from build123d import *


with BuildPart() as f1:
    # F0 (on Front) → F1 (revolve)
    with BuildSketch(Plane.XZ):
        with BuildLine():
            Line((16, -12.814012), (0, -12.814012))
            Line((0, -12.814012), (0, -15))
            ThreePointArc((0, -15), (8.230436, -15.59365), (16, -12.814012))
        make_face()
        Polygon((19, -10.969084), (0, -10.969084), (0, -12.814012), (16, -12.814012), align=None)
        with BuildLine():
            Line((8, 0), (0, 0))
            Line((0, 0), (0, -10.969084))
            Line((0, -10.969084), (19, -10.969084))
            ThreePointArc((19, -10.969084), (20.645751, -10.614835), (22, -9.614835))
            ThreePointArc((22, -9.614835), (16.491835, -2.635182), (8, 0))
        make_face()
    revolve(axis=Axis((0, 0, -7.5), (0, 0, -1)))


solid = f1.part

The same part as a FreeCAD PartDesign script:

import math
import FreeCAD as App
import Part
import Sketcher
from FreeCAD import Vector
Q = App.Units.Quantity

doc = App.newDocument("Part")
body = doc.addObject("PartDesign::Body", "Body")

# Sketch on XZ plane
sketch1 = body.newObject("Sketcher::SketchObject", "Sketch")
sketch1.AttachmentSupport = (doc.getObject("XZ_Plane"), [""])
sketch1.MapMode = "FlatFace"
sketch1.addGeometry(Part.ArcOfCircle(Part.Circle(Vector(5.5, 4.2, 0), Vector(0, 0, 1), 20), math.radians(-106), math.radians(-58)), False)
sketch1.addGeometry(Part.LineSegment(Vector(16, -12.8, 0), Vector(19, -11, 0)), False)
sketch1.addGeometry(Part.ArcOfCircle(Part.Circle(Vector(19, -7, 0), Vector(0, 0, 1), 4), math.radians(-90), math.radians(-41)), False)
sketch1.addGeometry(Part.ArcOfCircle(Part.Circle(Vector(8, -15, 0), Vector(0, 0, 1), 15), math.radians(21), math.radians(90)), False)
sketch1.addGeometry(Part.LineSegment(Vector(8, 0, 0), Vector(0, 0, 0)), False)
sketch1.addGeometry(Part.LineSegment(Vector(0, 0, 0), Vector(0, -15, 0)), False)
sketch1.addConstraint(Sketcher.Constraint("Tangent", 0, 2, 1, 1))
sketch1.addConstraint(Sketcher.Constraint("Coincident", 1, 2, 2, 1))
sketch1.addConstraint(Sketcher.Constraint("Coincident", 2, 2, 3, 1))
sketch1.addConstraint(Sketcher.Constraint("Tangent", 3, 2, 4, 1))
sketch1.addConstraint(Sketcher.Constraint("Coincident", 4, 2, 5, 1))
sketch1.addConstraint(Sketcher.Constraint("Coincident", 5, 2, 0, 1))
sketch1.addConstraint(Sketcher.Constraint("Horizontal", 4))
sketch1.addConstraint(Sketcher.Constraint("Vertical", 5))
sketch1.addConstraint(Sketcher.Constraint("Coincident", 4, 2, -1, 1))
sketch1.addConstraint(Sketcher.Constraint("Vertical", 2, 3, 1, 2))
sketch1.addConstraint(Sketcher.Constraint("Radius", 0, Q("19.999998 mm")))
sketch1.addConstraint(Sketcher.Constraint("DistanceX", 4, 2, 4, 1, Q("8 mm")))
sketch1.addConstraint(Sketcher.Constraint("DistanceY", 5, 2, 5, 1, Q("15 mm")))
sketch1.addConstraint(Sketcher.Constraint("DistanceX", -1, 1, 2, 3, Q("18.999998 mm")))
sketch1.addConstraint(Sketcher.Constraint("DistanceX", -1, 1, 0, 2, Q("16 mm")))
sketch1.addConstraint(Sketcher.Constraint("DistanceX", -1, 1, 2, 2, Q("22 mm")))
sketch1.addConstraint(Sketcher.Constraint("Radius", 2, Q("4.000003 mm")))
sketch1.addConstraint(Sketcher.Constraint("Radius", 3, Q("15.000002 mm")))
revolution = body.newObject("PartDesign::Revolution", "Revolution")
revolution.Profile = sketch1
revolution.ReferenceAxis = (sketch1, ["V_Axis"])
revolution.Angle = 360

doc.recompute()
